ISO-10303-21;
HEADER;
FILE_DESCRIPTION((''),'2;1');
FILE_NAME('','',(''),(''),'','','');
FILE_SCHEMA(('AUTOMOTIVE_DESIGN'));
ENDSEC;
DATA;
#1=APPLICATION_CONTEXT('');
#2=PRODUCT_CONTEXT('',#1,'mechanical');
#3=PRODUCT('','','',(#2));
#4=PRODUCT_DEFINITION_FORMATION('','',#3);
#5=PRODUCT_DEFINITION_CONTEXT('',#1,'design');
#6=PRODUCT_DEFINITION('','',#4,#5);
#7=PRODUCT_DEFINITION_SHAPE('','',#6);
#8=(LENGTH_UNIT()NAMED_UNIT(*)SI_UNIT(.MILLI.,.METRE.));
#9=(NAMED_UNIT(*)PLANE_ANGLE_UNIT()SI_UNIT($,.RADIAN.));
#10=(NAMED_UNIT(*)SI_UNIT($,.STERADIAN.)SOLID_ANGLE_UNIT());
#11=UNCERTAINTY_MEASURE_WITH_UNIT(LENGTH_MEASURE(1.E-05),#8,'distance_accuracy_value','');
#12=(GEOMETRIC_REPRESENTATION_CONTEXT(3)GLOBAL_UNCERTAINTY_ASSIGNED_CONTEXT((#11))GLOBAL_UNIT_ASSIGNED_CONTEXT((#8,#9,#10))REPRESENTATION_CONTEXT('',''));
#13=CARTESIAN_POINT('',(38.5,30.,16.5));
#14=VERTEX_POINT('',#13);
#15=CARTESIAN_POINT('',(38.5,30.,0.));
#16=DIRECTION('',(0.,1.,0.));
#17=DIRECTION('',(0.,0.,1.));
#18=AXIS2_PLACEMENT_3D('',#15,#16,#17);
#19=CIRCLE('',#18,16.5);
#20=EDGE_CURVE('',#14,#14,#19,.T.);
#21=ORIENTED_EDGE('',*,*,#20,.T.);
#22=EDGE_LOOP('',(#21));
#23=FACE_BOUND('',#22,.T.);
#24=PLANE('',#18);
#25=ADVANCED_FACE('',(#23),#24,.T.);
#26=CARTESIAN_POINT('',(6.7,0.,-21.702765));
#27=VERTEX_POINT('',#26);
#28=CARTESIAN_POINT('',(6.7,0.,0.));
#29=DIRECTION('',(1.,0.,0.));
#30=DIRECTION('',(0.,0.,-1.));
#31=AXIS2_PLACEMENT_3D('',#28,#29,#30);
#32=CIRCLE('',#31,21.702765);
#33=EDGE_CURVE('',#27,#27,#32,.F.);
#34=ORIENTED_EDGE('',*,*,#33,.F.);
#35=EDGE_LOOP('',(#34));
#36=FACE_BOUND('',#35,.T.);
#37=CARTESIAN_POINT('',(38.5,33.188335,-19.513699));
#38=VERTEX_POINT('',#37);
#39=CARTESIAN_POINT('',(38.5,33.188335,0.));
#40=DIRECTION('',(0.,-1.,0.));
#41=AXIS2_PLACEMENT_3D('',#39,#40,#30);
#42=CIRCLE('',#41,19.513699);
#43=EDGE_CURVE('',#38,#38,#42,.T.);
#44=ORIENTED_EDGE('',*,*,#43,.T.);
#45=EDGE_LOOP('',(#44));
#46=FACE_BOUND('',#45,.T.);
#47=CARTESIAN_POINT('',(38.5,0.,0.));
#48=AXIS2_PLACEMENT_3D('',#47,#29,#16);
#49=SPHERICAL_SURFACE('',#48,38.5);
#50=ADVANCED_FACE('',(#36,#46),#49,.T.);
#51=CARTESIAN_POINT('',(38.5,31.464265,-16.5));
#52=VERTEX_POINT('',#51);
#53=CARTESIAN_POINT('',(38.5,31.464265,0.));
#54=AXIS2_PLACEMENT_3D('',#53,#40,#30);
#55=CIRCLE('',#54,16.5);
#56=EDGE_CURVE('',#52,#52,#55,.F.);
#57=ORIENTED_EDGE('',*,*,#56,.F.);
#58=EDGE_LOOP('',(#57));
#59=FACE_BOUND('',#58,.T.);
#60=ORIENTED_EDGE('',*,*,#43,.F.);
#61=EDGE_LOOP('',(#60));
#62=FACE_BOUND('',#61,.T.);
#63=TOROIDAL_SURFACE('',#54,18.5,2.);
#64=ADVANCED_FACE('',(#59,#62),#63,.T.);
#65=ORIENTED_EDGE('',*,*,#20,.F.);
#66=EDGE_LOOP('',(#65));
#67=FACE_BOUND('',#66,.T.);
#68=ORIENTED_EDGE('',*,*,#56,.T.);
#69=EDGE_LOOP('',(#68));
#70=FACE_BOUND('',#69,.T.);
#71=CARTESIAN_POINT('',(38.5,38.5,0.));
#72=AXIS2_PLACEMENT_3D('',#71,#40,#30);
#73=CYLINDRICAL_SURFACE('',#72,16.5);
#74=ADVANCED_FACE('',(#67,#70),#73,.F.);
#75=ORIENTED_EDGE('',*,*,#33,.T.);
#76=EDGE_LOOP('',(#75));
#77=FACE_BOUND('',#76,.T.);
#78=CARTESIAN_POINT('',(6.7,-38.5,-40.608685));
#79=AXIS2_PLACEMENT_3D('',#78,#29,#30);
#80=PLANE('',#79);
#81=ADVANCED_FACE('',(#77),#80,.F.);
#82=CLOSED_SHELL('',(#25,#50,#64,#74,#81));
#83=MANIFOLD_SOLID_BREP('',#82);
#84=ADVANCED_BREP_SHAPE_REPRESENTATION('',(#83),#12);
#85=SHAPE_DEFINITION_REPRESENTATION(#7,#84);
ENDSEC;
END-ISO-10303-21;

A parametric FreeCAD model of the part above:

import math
import FreeCAD as App
import Part
import Sketcher
from FreeCAD import Vector
Q = App.Units.Quantity


def edges_at(feature, points):
    """Names of the edges that pass closest to the given points."""
    edges = feature.Shape.Edges
    near = lambda p: min(range(len(edges)), key=lambda i: edges[i].distToShape(Part.Vertex(*p))[0])
    return sorted({f"Edge{near(p) + 1}" for p in points})


def add_polygon(sketch, points):
    """Adds a closed chain of lines whose ends are joined by coincident constraints."""
    first, n = sketch.GeometryCount, len(points)
    for a, b in zip(points, points[1:] + points[:1]):
        sketch.addGeometry(Part.LineSegment(App.Vector(*a, 0), App.Vector(*b, 0)), False)
    for i in range(n):
        sketch.addConstraint(Sketcher.Constraint("Coincident", first + i, 2, first + (i + 1) % n, 1))

doc = App.newDocument("Part")
body = doc.addObject("PartDesign::Body", "Body")

sketch1 = body.newObject("Sketcher::SketchObject", "Sketch")
sketch1.AttachmentSupport = (doc.getObject("XY_Plane"), [""])
sketch1.MapMode = "FlatFace"
sketch1.addGeometry([
    Part.LineSegment(Vector(0, 0, 0), Vector(77, 0, 0)),
    Part.ArcOfCircle(Part.Circle(Vector(38, 0, 0), Vector(0, 0, 1), 38), math.radians(0), math.radians(180)),
], False)
sketch1.addConstraint([
    Sketcher.Constraint("Coincident", 0, 1, 1, 2),
    Sketcher.Constraint("Coincident", 1, 1, 0, 2),
    Sketcher.Constraint("Horizontal", 0),
    Sketcher.Constraint("Coincident", 0, 1, -1, 1),
    Sketcher.Constraint("PointOnObject", 1, 3, -1),
    Sketcher.Constraint("Radius", 1, Q("38.5 mm")),
])
revolution = body.newObject("PartDesign::Revolution", "Revolution")
revolution.Profile = sketch1
revolution.ReferenceAxis = (sketch1, ["H_Axis"])
revolution.Angle = 360

sketch2 = body.newObject("Sketcher::SketchObject", "Sketch001")
sketch2.AttachmentSupport = (doc.getObject("XZ_Plane"), [""])
sketch2.MapMode = "FlatFace"
add_polygon(sketch2, [(0, -41), (0, 42), (7, 42), (7, -41)])
sketch2.addConstraint([
    Sketcher.Constraint("Vertical", 0),
    Sketcher.Constraint("Horizontal", 1),
    Sketcher.Constraint("Vertical", 2),
    Sketcher.Constraint("Horizontal", 3),
    Sketcher.Constraint("PointOnObject", 0, 2, -2),
    Sketcher.Constraint("DistanceX", 1, 1, 1, 2, Q("6.7 mm")),
    Sketcher.Constraint("DistanceY", 0, 1, 0, 2, Q("83.07259 mm")),
    Sketcher.Constraint("DistanceY", -1, 1, 0, 2, Q("42.463904 mm")),
])
pocket1 = body.newObject("PartDesign::Pocket", "Pocket")
pocket1.Profile = sketch2
pocket1.Type = "ThroughAll"
pocket1.Midplane = True

sketch3 = body.newObject("Sketcher::SketchObject", "Sketch002")
sketch3.AttachmentSupport = (doc.getObject("XZ_Plane"), [""])
sketch3.MapMode = "FlatFace"
sketch3.AttachmentOffset = App.Placement(Vector(0, 0, -30), App.Rotation())
sketch3.addGeometry(Part.Circle(Vector(38, 0, 0), Vector(0, 0, 1), 16), False)
sketch3.addConstraint([
    Sketcher.Constraint("PointOnObject", 0, 3, -1),
    Sketcher.Constraint("Diameter", 0, Q("33 mm")),
    Sketcher.Constraint("DistanceX", -1, 1, 0, 3, Q("38.5 mm")),
])
pocket2 = body.newObject("PartDesign::Pocket", "Pocket001")
pocket2.Profile = sketch3
pocket2.Type = "ThroughAll"
doc.recompute()

fillet = body.newObject("PartDesign::Fillet", "Fillet")
fillet.Base = (pocket2, edges_at(pocket2, [(26.833, 34.785, -11.667)]))
fillet.Radius = 2

doc.recompute()
